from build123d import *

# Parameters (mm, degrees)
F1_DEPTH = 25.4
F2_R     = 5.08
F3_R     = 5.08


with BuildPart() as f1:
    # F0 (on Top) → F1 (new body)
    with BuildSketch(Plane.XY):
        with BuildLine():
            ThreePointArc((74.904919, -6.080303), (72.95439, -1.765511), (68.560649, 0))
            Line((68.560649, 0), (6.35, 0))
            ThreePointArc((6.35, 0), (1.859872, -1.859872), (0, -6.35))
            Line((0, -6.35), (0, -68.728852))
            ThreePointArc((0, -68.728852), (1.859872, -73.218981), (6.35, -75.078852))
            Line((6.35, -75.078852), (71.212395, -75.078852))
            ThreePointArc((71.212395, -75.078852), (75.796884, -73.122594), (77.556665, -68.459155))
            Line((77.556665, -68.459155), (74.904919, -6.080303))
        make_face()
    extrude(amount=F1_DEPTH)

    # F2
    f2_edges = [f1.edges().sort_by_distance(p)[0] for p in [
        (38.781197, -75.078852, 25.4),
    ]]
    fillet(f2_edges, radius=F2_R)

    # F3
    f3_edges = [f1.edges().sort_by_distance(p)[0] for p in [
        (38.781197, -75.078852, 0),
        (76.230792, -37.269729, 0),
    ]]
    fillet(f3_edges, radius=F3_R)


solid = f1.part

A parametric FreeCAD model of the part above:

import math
import FreeCAD as App
import Part
import Sketcher

V = App.Vector
Q = App.Units.Quantity


def edges_at(feature, points):
    """Names of the edges that pass closest to the given points."""
    edges = feature.Shape.Edges
    near = lambda p: min(range(len(edges)), key=lambda i: edges[i].distToShape(Part.Vertex(*p))[0])
    return sorted({f"Edge{near(p) + 1}" for p in points})

doc = App.newDocument("Part")
body = doc.addObject("PartDesign::Body", "Body")

sketch1 = body.newObject("Sketcher::SketchObject", "Sketch")
sketch1.AttachmentSupport = (doc.getObject("XY_Plane"), [""])
sketch1.MapMode = "FlatFace"
sketch1.addGeometry(Part.ArcOfCircle(Part.Circle(V(68.560649, -6.35, 0), V(0, 0, 1), 6.35), math.radians(2.434196), math.radians(90)), False)
sketch1.addGeometry(Part.LineSegment(V(68.560649, 0, 0), V(6.35, 0, 0)), False)
sketch1.addGeometry(Part.ArcOfCircle(Part.Circle(V(6.35, -6.35, 0), V(0, 0, 1), 6.35), math.radians(90.000002), math.radians(179.999998)), False)
sketch1.addGeometry(Part.LineSegment(V(0, -6.35, 0), V(0, -68.728852, 0)), False)
sketch1.addGeometry(Part.ArcOfCircle(Part.Circle(V(6.349998, -68.728853, 0), V(0, 0, 1), 6.349998), math.radians(179.999986), math.radians(270.000014)), False)
sketch1.addGeometry(Part.LineSegment(V(6.35, -75.078852, 0), V(71.212395, -75.078852, 0)), False)
sketch1.addGeometry(Part.ArcOfCircle(Part.Circle(V(71.212397, -68.728854, 0), V(0, 0, 1), 6.349998), math.radians(-90.000014), math.radians(2.434212)), False)
sketch1.addGeometry(Part.LineSegment(V(77.556665, -68.459155, 0), V(74.904919, -6.080303, 0)), False)
sketch1.addConstraint(Sketcher.Constraint("Tangent", 0, 2, 1, 1))
sketch1.addConstraint(Sketcher.Constraint("Tangent", 1, 2, 2, 1))
sketch1.addConstraint(Sketcher.Constraint("Tangent", 2, 2, 3, 1))
sketch1.addConstraint(Sketcher.Constraint("Tangent", 3, 2, 4, 1))
sketch1.addConstraint(Sketcher.Constraint("Tangent", 4, 2, 5, 1))
sketch1.addConstraint(Sketcher.Constraint("Tangent", 5, 2, 6, 1))
sketch1.addConstraint(Sketcher.Constraint("Tangent", 6, 2, 7, 1))
sketch1.addConstraint(Sketcher.Constraint("Tangent", 7, 2, 0, 1))
sketch1.addConstraint(Sketcher.Constraint("Horizontal", 1))
sketch1.addConstraint(Sketcher.Constraint("Vertical", 3))
sketch1.addConstraint(Sketcher.Constraint("Horizontal", 5))
sketch1.addConstraint(Sketcher.Constraint("Equal", 0, 2))
sketch1.addConstraint(Sketcher.Constraint("Equal", 2, 4))
sketch1.addConstraint(Sketcher.Constraint("Equal", 4, 6))
sketch1.addConstraint(Sketcher.Constraint("PointOnObject", 0, 2, -1))
sketch1.addConstraint(Sketcher.Constraint("PointOnObject", 2, 2, -2))
sketch1.addConstraint(Sketcher.Constraint("Radius", 0, Q("0.25 in")))
sketch1.addConstraint(Sketcher.Constraint("DistanceX", 1, 2, 1, 1, 62.210649))
sketch1.addConstraint(Sketcher.Constraint("DistanceX", 4, 3, 6, 3, 64.862398))
sketch1.addConstraint(Sketcher.Constraint("Distance", 7, 62.43519))
pad1 = body.newObject("PartDesign::Pad", "Pad")
pad1.Profile = sketch1
pad1.Length = Q("1 in")
doc.recompute()

fillet = body.newObject("PartDesign::Fillet", "Fillet")
fillet.Base = (pad1, edges_at(pad1, [(38.781, -75.079, 25.4)]))
fillet.Radius = Q("0.2 in")
doc.recompute()

fillet2 = body.newObject("PartDesign::Fillet", "Fillet001")
fillet2.Base = (fillet, edges_at(fillet, [(38.781, -75.079, 0), (76.231, -37.27, 0)]))
fillet2.Radius = Q("0.2 in")

doc.recompute()
